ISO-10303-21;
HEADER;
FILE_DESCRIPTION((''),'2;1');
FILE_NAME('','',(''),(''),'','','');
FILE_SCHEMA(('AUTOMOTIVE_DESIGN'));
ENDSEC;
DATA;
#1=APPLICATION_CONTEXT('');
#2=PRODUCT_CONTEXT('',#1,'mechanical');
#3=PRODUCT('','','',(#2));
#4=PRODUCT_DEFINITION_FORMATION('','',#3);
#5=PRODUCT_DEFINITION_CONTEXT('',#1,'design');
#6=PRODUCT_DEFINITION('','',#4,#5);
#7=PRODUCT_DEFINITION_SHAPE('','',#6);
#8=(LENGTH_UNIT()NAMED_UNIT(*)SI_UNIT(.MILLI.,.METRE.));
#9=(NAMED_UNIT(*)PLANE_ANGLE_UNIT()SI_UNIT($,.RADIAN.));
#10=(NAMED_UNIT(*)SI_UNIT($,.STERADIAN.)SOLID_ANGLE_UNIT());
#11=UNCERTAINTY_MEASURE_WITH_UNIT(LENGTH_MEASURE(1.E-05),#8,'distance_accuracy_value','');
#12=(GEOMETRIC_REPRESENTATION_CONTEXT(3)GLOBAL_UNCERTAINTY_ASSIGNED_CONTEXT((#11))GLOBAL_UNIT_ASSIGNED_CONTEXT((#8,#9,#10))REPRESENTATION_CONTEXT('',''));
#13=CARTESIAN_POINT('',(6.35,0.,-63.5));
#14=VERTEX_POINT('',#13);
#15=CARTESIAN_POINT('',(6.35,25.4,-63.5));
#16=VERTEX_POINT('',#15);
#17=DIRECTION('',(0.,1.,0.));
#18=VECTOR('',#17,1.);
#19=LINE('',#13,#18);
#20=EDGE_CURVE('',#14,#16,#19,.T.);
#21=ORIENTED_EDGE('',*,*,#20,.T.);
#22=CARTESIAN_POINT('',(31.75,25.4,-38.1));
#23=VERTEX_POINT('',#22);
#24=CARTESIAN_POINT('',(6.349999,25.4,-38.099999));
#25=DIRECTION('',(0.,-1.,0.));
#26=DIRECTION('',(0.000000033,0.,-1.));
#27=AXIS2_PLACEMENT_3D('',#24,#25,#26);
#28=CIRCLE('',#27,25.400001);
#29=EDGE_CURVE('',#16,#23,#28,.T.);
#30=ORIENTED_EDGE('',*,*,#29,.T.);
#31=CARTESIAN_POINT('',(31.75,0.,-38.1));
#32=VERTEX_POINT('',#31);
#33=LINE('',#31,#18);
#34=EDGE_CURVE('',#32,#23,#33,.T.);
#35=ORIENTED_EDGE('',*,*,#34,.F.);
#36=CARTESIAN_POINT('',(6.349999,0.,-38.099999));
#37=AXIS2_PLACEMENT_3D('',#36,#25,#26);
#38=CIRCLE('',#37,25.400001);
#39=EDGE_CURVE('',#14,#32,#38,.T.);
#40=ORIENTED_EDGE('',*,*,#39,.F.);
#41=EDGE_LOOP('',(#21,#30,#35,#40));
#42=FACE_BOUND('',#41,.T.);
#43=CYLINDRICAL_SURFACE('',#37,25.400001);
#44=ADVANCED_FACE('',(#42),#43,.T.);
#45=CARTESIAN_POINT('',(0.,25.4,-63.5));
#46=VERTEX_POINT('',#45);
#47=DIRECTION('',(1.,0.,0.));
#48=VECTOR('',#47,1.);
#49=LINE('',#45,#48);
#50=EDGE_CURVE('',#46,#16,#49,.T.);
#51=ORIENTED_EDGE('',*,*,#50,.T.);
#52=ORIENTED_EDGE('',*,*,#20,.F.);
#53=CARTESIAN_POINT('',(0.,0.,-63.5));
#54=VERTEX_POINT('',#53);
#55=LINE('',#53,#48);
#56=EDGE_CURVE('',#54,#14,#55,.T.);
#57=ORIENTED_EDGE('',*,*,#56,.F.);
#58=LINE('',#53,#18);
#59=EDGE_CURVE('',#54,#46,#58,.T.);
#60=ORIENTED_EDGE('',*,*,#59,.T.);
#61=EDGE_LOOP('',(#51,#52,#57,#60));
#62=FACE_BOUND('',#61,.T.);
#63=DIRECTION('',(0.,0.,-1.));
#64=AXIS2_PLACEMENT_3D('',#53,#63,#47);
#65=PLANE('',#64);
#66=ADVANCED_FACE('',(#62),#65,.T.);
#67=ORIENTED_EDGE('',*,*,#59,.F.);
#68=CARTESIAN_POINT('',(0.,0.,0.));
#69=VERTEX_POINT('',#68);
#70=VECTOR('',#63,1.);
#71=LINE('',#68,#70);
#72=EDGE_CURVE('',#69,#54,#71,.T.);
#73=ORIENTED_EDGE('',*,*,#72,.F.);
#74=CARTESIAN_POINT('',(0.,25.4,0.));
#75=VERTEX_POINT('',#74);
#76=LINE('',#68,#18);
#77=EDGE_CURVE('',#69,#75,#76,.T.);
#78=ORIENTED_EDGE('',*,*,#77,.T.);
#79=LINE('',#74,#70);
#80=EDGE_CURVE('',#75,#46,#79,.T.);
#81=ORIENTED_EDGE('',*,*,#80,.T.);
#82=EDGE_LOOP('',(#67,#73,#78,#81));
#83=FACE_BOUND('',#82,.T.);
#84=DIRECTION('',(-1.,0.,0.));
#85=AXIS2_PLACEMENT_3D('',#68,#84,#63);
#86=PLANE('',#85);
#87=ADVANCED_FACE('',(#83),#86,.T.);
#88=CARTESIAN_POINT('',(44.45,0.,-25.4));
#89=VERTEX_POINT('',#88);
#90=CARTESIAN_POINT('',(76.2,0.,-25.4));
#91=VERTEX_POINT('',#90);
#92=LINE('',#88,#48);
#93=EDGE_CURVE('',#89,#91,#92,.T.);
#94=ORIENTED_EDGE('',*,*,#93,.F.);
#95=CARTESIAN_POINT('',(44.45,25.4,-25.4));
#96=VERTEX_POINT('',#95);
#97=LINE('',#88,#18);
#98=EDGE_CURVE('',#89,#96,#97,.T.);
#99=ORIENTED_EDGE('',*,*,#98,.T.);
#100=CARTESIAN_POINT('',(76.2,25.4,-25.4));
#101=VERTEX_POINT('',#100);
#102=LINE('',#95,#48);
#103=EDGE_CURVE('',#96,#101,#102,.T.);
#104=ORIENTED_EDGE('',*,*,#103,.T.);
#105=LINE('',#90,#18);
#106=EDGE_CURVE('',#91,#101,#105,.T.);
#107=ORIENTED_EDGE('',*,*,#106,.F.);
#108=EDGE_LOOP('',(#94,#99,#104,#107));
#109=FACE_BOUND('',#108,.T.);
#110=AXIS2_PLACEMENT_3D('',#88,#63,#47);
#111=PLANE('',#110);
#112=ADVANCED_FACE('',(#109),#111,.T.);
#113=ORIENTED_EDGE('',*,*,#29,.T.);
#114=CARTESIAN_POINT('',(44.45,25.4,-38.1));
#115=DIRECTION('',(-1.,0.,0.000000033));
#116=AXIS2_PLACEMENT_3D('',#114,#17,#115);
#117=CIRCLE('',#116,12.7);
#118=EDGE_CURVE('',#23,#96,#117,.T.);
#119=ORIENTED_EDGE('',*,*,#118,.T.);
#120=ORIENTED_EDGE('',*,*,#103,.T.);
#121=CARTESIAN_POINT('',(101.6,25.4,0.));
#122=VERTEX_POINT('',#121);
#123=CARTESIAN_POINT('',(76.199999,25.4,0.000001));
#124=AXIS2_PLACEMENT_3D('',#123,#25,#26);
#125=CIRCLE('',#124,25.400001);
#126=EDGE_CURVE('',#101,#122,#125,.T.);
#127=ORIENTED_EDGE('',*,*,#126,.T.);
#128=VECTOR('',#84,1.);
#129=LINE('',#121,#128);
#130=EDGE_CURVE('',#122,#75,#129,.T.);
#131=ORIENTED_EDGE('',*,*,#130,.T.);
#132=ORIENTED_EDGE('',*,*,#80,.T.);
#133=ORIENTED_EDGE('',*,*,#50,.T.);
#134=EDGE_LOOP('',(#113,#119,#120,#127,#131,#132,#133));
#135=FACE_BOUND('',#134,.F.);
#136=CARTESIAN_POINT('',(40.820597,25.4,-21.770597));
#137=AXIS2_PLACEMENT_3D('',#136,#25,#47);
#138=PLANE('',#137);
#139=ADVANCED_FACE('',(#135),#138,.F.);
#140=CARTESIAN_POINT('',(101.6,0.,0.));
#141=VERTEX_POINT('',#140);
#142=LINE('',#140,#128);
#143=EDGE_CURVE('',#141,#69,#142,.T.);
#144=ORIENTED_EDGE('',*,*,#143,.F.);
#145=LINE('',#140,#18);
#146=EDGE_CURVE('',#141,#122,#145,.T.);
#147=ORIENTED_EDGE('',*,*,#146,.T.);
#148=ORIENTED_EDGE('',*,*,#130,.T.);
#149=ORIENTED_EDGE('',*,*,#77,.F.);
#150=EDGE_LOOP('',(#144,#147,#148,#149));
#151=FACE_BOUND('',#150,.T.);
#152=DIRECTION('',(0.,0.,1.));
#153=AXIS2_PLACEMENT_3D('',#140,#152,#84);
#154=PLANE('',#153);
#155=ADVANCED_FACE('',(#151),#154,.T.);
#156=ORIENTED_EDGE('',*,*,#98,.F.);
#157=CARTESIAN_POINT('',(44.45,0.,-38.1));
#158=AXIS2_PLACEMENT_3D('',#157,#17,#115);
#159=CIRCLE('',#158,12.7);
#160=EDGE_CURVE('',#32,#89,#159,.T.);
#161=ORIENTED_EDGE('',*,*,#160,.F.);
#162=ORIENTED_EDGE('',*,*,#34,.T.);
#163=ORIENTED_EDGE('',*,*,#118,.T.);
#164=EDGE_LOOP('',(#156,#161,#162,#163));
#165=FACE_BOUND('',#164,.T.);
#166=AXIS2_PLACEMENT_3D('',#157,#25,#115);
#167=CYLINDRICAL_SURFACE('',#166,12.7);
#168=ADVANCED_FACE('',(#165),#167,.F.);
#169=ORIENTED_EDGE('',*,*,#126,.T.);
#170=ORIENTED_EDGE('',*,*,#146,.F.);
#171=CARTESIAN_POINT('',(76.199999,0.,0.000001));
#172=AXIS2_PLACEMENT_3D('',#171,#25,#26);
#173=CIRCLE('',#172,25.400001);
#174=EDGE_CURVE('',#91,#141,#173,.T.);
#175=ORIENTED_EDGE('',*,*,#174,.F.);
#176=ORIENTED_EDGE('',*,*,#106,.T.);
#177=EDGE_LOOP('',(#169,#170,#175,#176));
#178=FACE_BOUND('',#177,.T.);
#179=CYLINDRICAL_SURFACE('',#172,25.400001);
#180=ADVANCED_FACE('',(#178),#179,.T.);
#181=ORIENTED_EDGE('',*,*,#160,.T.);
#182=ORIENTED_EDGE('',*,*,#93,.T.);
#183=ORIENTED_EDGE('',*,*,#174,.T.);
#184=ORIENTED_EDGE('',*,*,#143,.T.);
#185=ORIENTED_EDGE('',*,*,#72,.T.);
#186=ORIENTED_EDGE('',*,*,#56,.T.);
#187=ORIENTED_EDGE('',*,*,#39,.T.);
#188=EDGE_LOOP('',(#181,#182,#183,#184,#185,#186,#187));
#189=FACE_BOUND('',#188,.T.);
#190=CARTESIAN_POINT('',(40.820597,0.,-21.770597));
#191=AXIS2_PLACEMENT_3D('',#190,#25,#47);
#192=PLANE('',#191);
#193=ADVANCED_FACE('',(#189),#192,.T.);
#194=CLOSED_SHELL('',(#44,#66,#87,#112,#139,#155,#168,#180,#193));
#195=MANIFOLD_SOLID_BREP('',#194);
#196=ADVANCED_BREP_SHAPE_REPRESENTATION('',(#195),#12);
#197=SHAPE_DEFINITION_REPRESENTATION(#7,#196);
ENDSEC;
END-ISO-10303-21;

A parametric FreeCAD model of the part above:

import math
import FreeCAD as App
import Part
import Sketcher

V = App.Vector
Q = App.Units.Quantity

doc = App.newDocument("Part")
body = doc.addObject("PartDesign::Body", "Body")

sketch1 = body.newObject("Sketcher::SketchObject", "Sketch")
sketch1.AttachmentSupport = (doc.getObject("XZ_Plane"), [""])
sketch1.MapMode = "FlatFace"
sketch1.addGeometry([
    Part.LineSegment(V(102, 0, 0), V(0, 0, 0)),
    Part.LineSegment(V(0, 0, 0), V(0, -64, 0)),
    Part.LineSegment(V(0, -64, 0), V(6, -64, 0)),
    Part.ArcOfCircle(Part.Circle(V(6, -38, 0), V(0, 0, 1), 25), math.radians(-90), math.radians(0)),
    Part.ArcOfCircle(Part.Circle(V(44, -38, 0), V(0, 0, 1), 13), math.radians(90), math.radians(180)),
    Part.LineSegment(V(44, -25, 0), V(76, -25, 0)),
    Part.ArcOfCircle(Part.Circle(V(76, 0, 0), V(0, 0, 1), 25), math.radians(-90), math.radians(0)),
], False)
sketch1.addConstraint([
    Sketcher.Constraint("Coincident", 0, 2, 1, 1),
    Sketcher.Constraint("Coincident", 1, 2, 2, 1),
    Sketcher.Constraint("Tangent", 2, 2, 3, 1),
    Sketcher.Constraint("Tangent", 3, 2, 4, 2),
    Sketcher.Constraint("Tangent", 4, 1, 5, 1),
    Sketcher.Constraint("Tangent", 5, 2, 6, 1),
    Sketcher.Constraint("Coincident", 6, 2, 0, 1),
    Sketcher.Constraint("Horizontal", 0),
    Sketcher.Constraint("Vertical", 1),
    Sketcher.Constraint("Horizontal", 2),
    Sketcher.Constraint("Horizontal", 5),
    Sketcher.Constraint("Coincident", 0, 2, -1, 1),
    Sketcher.Constraint("Equal", 3, 6),
    Sketcher.Constraint("PointOnObject", 6, 3, -1),
    Sketcher.Constraint("Horizontal", 3, 3, 4, 3),
    Sketcher.Constraint("Radius", 3, Q("1 in")),
    Sketcher.Constraint("Radius", 4, Q("0.5 in")),
    Sketcher.Constraint("DistanceX", 0, 2, 0, 1, Q("4 in")),
    Sketcher.Constraint("DistanceX", 2, 1, 2, 2, Q("0.25 in")),
])
pad1 = body.newObject("PartDesign::Pad", "Pad")
pad1.Profile = sketch1
pad1.Length = Q("1 in")
pad1.Reversed = True

doc.recompute()
